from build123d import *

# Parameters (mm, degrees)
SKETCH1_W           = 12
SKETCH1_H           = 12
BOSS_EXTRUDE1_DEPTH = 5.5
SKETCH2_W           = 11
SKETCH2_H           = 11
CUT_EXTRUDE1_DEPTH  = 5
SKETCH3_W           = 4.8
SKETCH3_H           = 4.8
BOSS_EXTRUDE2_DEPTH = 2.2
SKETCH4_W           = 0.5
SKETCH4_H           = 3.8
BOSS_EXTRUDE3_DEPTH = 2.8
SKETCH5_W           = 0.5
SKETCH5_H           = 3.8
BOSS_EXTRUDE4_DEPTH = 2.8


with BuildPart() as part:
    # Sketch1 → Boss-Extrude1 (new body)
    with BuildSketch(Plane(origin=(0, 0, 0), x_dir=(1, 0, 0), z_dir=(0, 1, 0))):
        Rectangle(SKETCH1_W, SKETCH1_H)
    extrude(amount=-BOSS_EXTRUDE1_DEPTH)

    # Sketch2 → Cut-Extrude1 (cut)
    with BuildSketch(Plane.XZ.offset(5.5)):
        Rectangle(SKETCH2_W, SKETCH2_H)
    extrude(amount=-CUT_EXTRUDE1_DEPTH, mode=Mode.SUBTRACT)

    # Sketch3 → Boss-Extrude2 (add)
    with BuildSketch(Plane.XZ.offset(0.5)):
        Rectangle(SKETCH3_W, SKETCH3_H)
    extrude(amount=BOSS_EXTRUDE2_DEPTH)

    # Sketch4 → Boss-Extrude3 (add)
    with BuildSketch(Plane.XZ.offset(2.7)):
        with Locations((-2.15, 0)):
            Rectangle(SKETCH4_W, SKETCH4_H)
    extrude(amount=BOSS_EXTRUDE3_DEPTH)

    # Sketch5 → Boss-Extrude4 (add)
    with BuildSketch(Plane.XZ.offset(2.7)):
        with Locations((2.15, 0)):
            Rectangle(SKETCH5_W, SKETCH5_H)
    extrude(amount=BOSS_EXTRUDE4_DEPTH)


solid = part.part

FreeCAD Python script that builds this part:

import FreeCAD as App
import Part
import Sketcher
from FreeCAD import Vector

doc = App.newDocument("Part")
params = doc.addObject("Spreadsheet::Sheet", "Params")
for row, (alias, value) in enumerate([
    ("sketch1_width", "12 mm"),
    ("pad1_length", "5.5 mm"),
    ("sketch2_width", "11 mm"),
    ("pocket1_length", "5 mm"),
    ("sketch3_width", "4.8 mm"),
    ("pad2_length", "2.2 mm"),
    ("sketch4_width", "0.5 mm"),
    ("sketch4_height", "3.8 mm"),
    ("pad3_length", "2.8 mm"),
    ("sketch5_width", "0.5 mm"),
    ("sketch5_height", "3.8 mm"),
    ("pad4_length", "2.8 mm"),
], start=1):
    params.set(f"A{row}", alias)
    params.set(f"B{row}", "=" + value)
    params.setAlias(f"B{row}", alias)

body = doc.addObject("PartDesign::Body", "Body")

sketch1 = body.newObject("Sketcher::SketchObject", "Sketch")
sketch1.AttachmentSupport = (doc.getObject("XZ_Plane"), [""])
sketch1.MapMode = "FlatFace"
sketch1.addGeometry(Part.LineSegment(Vector(-6, -6, 0), Vector(-6, 6, 0)), False)
sketch1.addGeometry(Part.LineSegment(Vector(-6, 6, 0), Vector(6, 6, 0)), False)
sketch1.addGeometry(Part.LineSegment(Vector(6, 6, 0), Vector(6, -6, 0)), False)
sketch1.addGeometry(Part.LineSegment(Vector(6, -6, 0), Vector(-6, -6, 0)), False)
sketch1.addConstraint(Sketcher.Constraint("Coincident", 0, 2, 1, 1))
sketch1.addConstraint(Sketcher.Constraint("Coincident", 1, 2, 2, 1))
sketch1.addConstraint(Sketcher.Constraint("Coincident", 2, 2, 3, 1))
sketch1.addConstraint(Sketcher.Constraint("Coincident", 3, 2, 0, 1))
sketch1.addConstraint(Sketcher.Constraint("Vertical", 0))
sketch1.addConstraint(Sketcher.Constraint("Horizontal", 1))
sketch1.addConstraint(Sketcher.Constraint("Vertical", 2))
sketch1.addConstraint(Sketcher.Constraint("Horizontal", 3))
sketch1.addConstraint(Sketcher.Constraint("Symmetric", 0, 2, 2, 2, -1, 1))
sketch1.addConstraint(Sketcher.Constraint("Equal", 3, 0))
sketch1.addConstraint(Sketcher.Constraint("DistanceX", 1, 1, 1, 2, 12.0))
sketch1.setExpression("Constraints[10]", "Params.sketch1_width")
pad1 = body.newObject("PartDesign::Pad", "Pad")
pad1.Profile = sketch1
pad1.setExpression("Length", "Params.pad1_length")

sketch2 = body.newObject("Sketcher::SketchObject", "Sketch001")
sketch2.AttachmentSupport = (doc.getObject("XZ_Plane"), [""])
sketch2.MapMode = "FlatFace"
sketch2.AttachmentOffset = App.Placement(Vector(0, 0, 5.5), App.Rotation())
sketch2.addGeometry(Part.LineSegment(Vector(-6, 6, 0), Vector(-6, -6, 0)), False)
sketch2.addGeometry(Part.LineSegment(Vector(-6, -6, 0), Vector(6, -6, 0)), False)
sketch2.addGeometry(Part.LineSegment(Vector(6, -6, 0), Vector(6, 6, 0)), False)
sketch2.addGeometry(Part.LineSegment(Vector(6, 6, 0), Vector(-6, 6, 0)), False)
sketch2.addConstraint(Sketcher.Constraint("Coincident", 0, 2, 1, 1))
sketch2.addConstraint(Sketcher.Constraint("Coincident", 1, 2, 2, 1))
sketch2.addConstraint(Sketcher.Constraint("Coincident", 2, 2, 3, 1))
sketch2.addConstraint(Sketcher.Constraint("Coincident", 3, 2, 0, 1))
sketch2.addConstraint(Sketcher.Constraint("Vertical", 0))
sketch2.addConstraint(Sketcher.Constraint("Horizontal", 1))
sketch2.addConstraint(Sketcher.Constraint("Vertical", 2))
sketch2.addConstraint(Sketcher.Constraint("Horizontal", 3))
sketch2.addConstraint(Sketcher.Constraint("Symmetric", 0, 2, 2, 2, -1, 1))
sketch2.addConstraint(Sketcher.Constraint("Equal", 3, 0))
sketch2.addConstraint(Sketcher.Constraint("DistanceX", 1, 1, 1, 2, 11.0))
sketch2.setExpression("Constraints[10]", "Params.sketch2_width")
pocket1 = body.newObject("PartDesign::Pocket", "Pocket")
pocket1.Profile = sketch2
pocket1.setExpression("Length", "Params.pocket1_length")

sketch3 = body.newObject("Sketcher::SketchObject", "Sketch002")
sketch3.AttachmentSupport = (doc.getObject("XZ_Plane"), [""])
sketch3.MapMode = "FlatFace"
sketch3.AttachmentOffset = App.Placement(Vector(0, 0, 0.5), App.Rotation())
sketch3.addGeometry(Part.LineSegment(Vector(-2.4, 2.4, 0), Vector(-2.4, -2.4, 0)), False)
sketch3.addGeometry(Part.LineSegment(Vector(-2.4, -2.4, 0), Vector(2.4, -2.4, 0)), False)
sketch3.addGeometry(Part.LineSegment(Vector(2.4, -2.4, 0), Vector(2.4, 2.4, 0)), False)
sketch3.addGeometry(Part.LineSegment(Vector(2.4, 2.4, 0), Vector(-2.4, 2.4, 0)), False)
sketch3.addConstraint(Sketcher.Constraint("Coincident", 0, 2, 1, 1))
sketch3.addConstraint(Sketcher.Constraint("Coincident", 1, 2, 2, 1))
sketch3.addConstraint(Sketcher.Constraint("Coincident", 2, 2, 3, 1))
sketch3.addConstraint(Sketcher.Constraint("Coincident", 3, 2, 0, 1))
sketch3.addConstraint(Sketcher.Constraint("Vertical", 0))
sketch3.addConstraint(Sketcher.Constraint("Horizontal", 1))
sketch3.addConstraint(Sketcher.Constraint("Vertical", 2))
sketch3.addConstraint(Sketcher.Constraint("Horizontal", 3))
sketch3.addConstraint(Sketcher.Constraint("Symmetric", 0, 2, 2, 2, -1, 1))
sketch3.addConstraint(Sketcher.Constraint("Equal", 3, 0))
sketch3.addConstraint(Sketcher.Constraint("DistanceX", 1, 1, 1, 2, 4.8))
sketch3.setExpression("Constraints[10]", "Params.sketch3_width")
pad2 = body.newObject("PartDesign::Pad", "Pad001")
pad2.Profile = sketch3
pad2.setExpression("Length", "Params.pad2_length")

sketch4 = body.newObject("Sketcher::SketchObject", "Sketch003")
sketch4.AttachmentSupport = (doc.getObject("XZ_Plane"), [""])
sketch4.MapMode = "FlatFace"
sketch4.AttachmentOffset = App.Placement(Vector(0, 0, 2.7), App.Rotation())
sketch4.addGeometry(Part.LineSegment(Vector(-2.4, 1.9, 0), Vector(-2.4, -1.9, 0)), False)
sketch4.addGeometry(Part.LineSegment(Vector(-2.4, -1.9, 0), Vector(-1.9, -1.9, 0)), False)
sketch4.addGeometry(Part.LineSegment(Vector(-1.9, -1.9, 0), Vector(-1.9, 1.9, 0)), False)
sketch4.addGeometry(Part.LineSegment(Vector(-1.9, 1.9, 0), Vector(-2.4, 1.9, 0)), False)
sketch4.addConstraint(Sketcher.Constraint("Coincident", 0, 2, 1, 1))
sketch4.addConstraint(Sketcher.Constraint("Coincident", 1, 2, 2, 1))
sketch4.addConstraint(Sketcher.Constraint("Coincident", 2, 2, 3, 1))
sketch4.addConstraint(Sketcher.Constraint("Coincident", 3, 2, 0, 1))
sketch4.addConstraint(Sketcher.Constraint("Vertical", 0))
sketch4.addConstraint(Sketcher.Constraint("Horizontal", 1))
sketch4.addConstraint(Sketcher.Constraint("Vertical", 2))
sketch4.addConstraint(Sketcher.Constraint("Horizontal", 3))
sketch4.addConstraint(Sketcher.Constraint("DistanceX", 1, 1, 1, 2, 0.5))
sketch4.addConstraint(Sketcher.Constraint("DistanceY", 0, 2, 0, 1, 3.8))
sketch4.addConstraint(Sketcher.Constraint("DistanceX", 0, 2, -1, 1, 2.4))
sketch4.addConstraint(Sketcher.Constraint("DistanceY", 0, 2, -1, 1, 1.9))
sketch4.setExpression("Constraints[8]", "Params.sketch4_width")
sketch4.setExpression("Constraints[9]", "Params.sketch4_height")
pad3 = body.newObject("PartDesign::Pad", "Pad002")
pad3.Profile = sketch4
pad3.setExpression("Length", "Params.pad3_length")

sketch5 = body.newObject("Sketcher::SketchObject", "Sketch004")
sketch5.AttachmentSupport = (doc.getObject("XZ_Plane"), [""])
sketch5.MapMode = "FlatFace"
sketch5.AttachmentOffset = App.Placement(Vector(0, 0, 2.7), App.Rotation())
sketch5.addGeometry(Part.LineSegment(Vector(1.9, 1.9, 0), Vector(1.9, -1.9, 0)), False)
sketch5.addGeometry(Part.LineSegment(Vector(1.9, -1.9, 0), Vector(2.4, -1.9, 0)), False)
sketch5.addGeometry(Part.LineSegment(Vector(2.4, -1.9, 0), Vector(2.4, 1.9, 0)), False)
sketch5.addGeometry(Part.LineSegment(Vector(2.4, 1.9, 0), Vector(1.9, 1.9, 0)), False)
sketch5.addConstraint(Sketcher.Constraint("Coincident", 0, 2, 1, 1))
sketch5.addConstraint(Sketcher.Constraint("Coincident", 1, 2, 2, 1))
sketch5.addConstraint(Sketcher.Constraint("Coincident", 2, 2, 3, 1))
sketch5.addConstraint(Sketcher.Constraint("Coincident", 3, 2, 0, 1))
sketch5.addConstraint(Sketcher.Constraint("Vertical", 0))
sketch5.addConstraint(Sketcher.Constraint("Horizontal", 1))
sketch5.addConstraint(Sketcher.Constraint("Vertical", 2))
sketch5.addConstraint(Sketcher.Constraint("Horizontal", 3))
sketch5.addConstraint(Sketcher.Constraint("DistanceX", 1, 1, 1, 2, 0.5))
sketch5.addConstraint(Sketcher.Constraint("DistanceY", 0, 2, 0, 1, 3.8))
sketch5.addConstraint(Sketcher.Constraint("DistanceX", -1, 1, 0, 2, 1.9))
sketch5.addConstraint(Sketcher.Constraint("DistanceY", 0, 2, -1, 1, 1.9))
sketch5.setExpression("Constraints[8]", "Params.sketch5_width")
sketch5.setExpression("Constraints[9]", "Params.sketch5_height")
pad4 = body.newObject("PartDesign::Pad", "Pad003")
pad4.Profile = sketch5
pad4.setExpression("Length", "Params.pad4_length")

doc.recompute()
